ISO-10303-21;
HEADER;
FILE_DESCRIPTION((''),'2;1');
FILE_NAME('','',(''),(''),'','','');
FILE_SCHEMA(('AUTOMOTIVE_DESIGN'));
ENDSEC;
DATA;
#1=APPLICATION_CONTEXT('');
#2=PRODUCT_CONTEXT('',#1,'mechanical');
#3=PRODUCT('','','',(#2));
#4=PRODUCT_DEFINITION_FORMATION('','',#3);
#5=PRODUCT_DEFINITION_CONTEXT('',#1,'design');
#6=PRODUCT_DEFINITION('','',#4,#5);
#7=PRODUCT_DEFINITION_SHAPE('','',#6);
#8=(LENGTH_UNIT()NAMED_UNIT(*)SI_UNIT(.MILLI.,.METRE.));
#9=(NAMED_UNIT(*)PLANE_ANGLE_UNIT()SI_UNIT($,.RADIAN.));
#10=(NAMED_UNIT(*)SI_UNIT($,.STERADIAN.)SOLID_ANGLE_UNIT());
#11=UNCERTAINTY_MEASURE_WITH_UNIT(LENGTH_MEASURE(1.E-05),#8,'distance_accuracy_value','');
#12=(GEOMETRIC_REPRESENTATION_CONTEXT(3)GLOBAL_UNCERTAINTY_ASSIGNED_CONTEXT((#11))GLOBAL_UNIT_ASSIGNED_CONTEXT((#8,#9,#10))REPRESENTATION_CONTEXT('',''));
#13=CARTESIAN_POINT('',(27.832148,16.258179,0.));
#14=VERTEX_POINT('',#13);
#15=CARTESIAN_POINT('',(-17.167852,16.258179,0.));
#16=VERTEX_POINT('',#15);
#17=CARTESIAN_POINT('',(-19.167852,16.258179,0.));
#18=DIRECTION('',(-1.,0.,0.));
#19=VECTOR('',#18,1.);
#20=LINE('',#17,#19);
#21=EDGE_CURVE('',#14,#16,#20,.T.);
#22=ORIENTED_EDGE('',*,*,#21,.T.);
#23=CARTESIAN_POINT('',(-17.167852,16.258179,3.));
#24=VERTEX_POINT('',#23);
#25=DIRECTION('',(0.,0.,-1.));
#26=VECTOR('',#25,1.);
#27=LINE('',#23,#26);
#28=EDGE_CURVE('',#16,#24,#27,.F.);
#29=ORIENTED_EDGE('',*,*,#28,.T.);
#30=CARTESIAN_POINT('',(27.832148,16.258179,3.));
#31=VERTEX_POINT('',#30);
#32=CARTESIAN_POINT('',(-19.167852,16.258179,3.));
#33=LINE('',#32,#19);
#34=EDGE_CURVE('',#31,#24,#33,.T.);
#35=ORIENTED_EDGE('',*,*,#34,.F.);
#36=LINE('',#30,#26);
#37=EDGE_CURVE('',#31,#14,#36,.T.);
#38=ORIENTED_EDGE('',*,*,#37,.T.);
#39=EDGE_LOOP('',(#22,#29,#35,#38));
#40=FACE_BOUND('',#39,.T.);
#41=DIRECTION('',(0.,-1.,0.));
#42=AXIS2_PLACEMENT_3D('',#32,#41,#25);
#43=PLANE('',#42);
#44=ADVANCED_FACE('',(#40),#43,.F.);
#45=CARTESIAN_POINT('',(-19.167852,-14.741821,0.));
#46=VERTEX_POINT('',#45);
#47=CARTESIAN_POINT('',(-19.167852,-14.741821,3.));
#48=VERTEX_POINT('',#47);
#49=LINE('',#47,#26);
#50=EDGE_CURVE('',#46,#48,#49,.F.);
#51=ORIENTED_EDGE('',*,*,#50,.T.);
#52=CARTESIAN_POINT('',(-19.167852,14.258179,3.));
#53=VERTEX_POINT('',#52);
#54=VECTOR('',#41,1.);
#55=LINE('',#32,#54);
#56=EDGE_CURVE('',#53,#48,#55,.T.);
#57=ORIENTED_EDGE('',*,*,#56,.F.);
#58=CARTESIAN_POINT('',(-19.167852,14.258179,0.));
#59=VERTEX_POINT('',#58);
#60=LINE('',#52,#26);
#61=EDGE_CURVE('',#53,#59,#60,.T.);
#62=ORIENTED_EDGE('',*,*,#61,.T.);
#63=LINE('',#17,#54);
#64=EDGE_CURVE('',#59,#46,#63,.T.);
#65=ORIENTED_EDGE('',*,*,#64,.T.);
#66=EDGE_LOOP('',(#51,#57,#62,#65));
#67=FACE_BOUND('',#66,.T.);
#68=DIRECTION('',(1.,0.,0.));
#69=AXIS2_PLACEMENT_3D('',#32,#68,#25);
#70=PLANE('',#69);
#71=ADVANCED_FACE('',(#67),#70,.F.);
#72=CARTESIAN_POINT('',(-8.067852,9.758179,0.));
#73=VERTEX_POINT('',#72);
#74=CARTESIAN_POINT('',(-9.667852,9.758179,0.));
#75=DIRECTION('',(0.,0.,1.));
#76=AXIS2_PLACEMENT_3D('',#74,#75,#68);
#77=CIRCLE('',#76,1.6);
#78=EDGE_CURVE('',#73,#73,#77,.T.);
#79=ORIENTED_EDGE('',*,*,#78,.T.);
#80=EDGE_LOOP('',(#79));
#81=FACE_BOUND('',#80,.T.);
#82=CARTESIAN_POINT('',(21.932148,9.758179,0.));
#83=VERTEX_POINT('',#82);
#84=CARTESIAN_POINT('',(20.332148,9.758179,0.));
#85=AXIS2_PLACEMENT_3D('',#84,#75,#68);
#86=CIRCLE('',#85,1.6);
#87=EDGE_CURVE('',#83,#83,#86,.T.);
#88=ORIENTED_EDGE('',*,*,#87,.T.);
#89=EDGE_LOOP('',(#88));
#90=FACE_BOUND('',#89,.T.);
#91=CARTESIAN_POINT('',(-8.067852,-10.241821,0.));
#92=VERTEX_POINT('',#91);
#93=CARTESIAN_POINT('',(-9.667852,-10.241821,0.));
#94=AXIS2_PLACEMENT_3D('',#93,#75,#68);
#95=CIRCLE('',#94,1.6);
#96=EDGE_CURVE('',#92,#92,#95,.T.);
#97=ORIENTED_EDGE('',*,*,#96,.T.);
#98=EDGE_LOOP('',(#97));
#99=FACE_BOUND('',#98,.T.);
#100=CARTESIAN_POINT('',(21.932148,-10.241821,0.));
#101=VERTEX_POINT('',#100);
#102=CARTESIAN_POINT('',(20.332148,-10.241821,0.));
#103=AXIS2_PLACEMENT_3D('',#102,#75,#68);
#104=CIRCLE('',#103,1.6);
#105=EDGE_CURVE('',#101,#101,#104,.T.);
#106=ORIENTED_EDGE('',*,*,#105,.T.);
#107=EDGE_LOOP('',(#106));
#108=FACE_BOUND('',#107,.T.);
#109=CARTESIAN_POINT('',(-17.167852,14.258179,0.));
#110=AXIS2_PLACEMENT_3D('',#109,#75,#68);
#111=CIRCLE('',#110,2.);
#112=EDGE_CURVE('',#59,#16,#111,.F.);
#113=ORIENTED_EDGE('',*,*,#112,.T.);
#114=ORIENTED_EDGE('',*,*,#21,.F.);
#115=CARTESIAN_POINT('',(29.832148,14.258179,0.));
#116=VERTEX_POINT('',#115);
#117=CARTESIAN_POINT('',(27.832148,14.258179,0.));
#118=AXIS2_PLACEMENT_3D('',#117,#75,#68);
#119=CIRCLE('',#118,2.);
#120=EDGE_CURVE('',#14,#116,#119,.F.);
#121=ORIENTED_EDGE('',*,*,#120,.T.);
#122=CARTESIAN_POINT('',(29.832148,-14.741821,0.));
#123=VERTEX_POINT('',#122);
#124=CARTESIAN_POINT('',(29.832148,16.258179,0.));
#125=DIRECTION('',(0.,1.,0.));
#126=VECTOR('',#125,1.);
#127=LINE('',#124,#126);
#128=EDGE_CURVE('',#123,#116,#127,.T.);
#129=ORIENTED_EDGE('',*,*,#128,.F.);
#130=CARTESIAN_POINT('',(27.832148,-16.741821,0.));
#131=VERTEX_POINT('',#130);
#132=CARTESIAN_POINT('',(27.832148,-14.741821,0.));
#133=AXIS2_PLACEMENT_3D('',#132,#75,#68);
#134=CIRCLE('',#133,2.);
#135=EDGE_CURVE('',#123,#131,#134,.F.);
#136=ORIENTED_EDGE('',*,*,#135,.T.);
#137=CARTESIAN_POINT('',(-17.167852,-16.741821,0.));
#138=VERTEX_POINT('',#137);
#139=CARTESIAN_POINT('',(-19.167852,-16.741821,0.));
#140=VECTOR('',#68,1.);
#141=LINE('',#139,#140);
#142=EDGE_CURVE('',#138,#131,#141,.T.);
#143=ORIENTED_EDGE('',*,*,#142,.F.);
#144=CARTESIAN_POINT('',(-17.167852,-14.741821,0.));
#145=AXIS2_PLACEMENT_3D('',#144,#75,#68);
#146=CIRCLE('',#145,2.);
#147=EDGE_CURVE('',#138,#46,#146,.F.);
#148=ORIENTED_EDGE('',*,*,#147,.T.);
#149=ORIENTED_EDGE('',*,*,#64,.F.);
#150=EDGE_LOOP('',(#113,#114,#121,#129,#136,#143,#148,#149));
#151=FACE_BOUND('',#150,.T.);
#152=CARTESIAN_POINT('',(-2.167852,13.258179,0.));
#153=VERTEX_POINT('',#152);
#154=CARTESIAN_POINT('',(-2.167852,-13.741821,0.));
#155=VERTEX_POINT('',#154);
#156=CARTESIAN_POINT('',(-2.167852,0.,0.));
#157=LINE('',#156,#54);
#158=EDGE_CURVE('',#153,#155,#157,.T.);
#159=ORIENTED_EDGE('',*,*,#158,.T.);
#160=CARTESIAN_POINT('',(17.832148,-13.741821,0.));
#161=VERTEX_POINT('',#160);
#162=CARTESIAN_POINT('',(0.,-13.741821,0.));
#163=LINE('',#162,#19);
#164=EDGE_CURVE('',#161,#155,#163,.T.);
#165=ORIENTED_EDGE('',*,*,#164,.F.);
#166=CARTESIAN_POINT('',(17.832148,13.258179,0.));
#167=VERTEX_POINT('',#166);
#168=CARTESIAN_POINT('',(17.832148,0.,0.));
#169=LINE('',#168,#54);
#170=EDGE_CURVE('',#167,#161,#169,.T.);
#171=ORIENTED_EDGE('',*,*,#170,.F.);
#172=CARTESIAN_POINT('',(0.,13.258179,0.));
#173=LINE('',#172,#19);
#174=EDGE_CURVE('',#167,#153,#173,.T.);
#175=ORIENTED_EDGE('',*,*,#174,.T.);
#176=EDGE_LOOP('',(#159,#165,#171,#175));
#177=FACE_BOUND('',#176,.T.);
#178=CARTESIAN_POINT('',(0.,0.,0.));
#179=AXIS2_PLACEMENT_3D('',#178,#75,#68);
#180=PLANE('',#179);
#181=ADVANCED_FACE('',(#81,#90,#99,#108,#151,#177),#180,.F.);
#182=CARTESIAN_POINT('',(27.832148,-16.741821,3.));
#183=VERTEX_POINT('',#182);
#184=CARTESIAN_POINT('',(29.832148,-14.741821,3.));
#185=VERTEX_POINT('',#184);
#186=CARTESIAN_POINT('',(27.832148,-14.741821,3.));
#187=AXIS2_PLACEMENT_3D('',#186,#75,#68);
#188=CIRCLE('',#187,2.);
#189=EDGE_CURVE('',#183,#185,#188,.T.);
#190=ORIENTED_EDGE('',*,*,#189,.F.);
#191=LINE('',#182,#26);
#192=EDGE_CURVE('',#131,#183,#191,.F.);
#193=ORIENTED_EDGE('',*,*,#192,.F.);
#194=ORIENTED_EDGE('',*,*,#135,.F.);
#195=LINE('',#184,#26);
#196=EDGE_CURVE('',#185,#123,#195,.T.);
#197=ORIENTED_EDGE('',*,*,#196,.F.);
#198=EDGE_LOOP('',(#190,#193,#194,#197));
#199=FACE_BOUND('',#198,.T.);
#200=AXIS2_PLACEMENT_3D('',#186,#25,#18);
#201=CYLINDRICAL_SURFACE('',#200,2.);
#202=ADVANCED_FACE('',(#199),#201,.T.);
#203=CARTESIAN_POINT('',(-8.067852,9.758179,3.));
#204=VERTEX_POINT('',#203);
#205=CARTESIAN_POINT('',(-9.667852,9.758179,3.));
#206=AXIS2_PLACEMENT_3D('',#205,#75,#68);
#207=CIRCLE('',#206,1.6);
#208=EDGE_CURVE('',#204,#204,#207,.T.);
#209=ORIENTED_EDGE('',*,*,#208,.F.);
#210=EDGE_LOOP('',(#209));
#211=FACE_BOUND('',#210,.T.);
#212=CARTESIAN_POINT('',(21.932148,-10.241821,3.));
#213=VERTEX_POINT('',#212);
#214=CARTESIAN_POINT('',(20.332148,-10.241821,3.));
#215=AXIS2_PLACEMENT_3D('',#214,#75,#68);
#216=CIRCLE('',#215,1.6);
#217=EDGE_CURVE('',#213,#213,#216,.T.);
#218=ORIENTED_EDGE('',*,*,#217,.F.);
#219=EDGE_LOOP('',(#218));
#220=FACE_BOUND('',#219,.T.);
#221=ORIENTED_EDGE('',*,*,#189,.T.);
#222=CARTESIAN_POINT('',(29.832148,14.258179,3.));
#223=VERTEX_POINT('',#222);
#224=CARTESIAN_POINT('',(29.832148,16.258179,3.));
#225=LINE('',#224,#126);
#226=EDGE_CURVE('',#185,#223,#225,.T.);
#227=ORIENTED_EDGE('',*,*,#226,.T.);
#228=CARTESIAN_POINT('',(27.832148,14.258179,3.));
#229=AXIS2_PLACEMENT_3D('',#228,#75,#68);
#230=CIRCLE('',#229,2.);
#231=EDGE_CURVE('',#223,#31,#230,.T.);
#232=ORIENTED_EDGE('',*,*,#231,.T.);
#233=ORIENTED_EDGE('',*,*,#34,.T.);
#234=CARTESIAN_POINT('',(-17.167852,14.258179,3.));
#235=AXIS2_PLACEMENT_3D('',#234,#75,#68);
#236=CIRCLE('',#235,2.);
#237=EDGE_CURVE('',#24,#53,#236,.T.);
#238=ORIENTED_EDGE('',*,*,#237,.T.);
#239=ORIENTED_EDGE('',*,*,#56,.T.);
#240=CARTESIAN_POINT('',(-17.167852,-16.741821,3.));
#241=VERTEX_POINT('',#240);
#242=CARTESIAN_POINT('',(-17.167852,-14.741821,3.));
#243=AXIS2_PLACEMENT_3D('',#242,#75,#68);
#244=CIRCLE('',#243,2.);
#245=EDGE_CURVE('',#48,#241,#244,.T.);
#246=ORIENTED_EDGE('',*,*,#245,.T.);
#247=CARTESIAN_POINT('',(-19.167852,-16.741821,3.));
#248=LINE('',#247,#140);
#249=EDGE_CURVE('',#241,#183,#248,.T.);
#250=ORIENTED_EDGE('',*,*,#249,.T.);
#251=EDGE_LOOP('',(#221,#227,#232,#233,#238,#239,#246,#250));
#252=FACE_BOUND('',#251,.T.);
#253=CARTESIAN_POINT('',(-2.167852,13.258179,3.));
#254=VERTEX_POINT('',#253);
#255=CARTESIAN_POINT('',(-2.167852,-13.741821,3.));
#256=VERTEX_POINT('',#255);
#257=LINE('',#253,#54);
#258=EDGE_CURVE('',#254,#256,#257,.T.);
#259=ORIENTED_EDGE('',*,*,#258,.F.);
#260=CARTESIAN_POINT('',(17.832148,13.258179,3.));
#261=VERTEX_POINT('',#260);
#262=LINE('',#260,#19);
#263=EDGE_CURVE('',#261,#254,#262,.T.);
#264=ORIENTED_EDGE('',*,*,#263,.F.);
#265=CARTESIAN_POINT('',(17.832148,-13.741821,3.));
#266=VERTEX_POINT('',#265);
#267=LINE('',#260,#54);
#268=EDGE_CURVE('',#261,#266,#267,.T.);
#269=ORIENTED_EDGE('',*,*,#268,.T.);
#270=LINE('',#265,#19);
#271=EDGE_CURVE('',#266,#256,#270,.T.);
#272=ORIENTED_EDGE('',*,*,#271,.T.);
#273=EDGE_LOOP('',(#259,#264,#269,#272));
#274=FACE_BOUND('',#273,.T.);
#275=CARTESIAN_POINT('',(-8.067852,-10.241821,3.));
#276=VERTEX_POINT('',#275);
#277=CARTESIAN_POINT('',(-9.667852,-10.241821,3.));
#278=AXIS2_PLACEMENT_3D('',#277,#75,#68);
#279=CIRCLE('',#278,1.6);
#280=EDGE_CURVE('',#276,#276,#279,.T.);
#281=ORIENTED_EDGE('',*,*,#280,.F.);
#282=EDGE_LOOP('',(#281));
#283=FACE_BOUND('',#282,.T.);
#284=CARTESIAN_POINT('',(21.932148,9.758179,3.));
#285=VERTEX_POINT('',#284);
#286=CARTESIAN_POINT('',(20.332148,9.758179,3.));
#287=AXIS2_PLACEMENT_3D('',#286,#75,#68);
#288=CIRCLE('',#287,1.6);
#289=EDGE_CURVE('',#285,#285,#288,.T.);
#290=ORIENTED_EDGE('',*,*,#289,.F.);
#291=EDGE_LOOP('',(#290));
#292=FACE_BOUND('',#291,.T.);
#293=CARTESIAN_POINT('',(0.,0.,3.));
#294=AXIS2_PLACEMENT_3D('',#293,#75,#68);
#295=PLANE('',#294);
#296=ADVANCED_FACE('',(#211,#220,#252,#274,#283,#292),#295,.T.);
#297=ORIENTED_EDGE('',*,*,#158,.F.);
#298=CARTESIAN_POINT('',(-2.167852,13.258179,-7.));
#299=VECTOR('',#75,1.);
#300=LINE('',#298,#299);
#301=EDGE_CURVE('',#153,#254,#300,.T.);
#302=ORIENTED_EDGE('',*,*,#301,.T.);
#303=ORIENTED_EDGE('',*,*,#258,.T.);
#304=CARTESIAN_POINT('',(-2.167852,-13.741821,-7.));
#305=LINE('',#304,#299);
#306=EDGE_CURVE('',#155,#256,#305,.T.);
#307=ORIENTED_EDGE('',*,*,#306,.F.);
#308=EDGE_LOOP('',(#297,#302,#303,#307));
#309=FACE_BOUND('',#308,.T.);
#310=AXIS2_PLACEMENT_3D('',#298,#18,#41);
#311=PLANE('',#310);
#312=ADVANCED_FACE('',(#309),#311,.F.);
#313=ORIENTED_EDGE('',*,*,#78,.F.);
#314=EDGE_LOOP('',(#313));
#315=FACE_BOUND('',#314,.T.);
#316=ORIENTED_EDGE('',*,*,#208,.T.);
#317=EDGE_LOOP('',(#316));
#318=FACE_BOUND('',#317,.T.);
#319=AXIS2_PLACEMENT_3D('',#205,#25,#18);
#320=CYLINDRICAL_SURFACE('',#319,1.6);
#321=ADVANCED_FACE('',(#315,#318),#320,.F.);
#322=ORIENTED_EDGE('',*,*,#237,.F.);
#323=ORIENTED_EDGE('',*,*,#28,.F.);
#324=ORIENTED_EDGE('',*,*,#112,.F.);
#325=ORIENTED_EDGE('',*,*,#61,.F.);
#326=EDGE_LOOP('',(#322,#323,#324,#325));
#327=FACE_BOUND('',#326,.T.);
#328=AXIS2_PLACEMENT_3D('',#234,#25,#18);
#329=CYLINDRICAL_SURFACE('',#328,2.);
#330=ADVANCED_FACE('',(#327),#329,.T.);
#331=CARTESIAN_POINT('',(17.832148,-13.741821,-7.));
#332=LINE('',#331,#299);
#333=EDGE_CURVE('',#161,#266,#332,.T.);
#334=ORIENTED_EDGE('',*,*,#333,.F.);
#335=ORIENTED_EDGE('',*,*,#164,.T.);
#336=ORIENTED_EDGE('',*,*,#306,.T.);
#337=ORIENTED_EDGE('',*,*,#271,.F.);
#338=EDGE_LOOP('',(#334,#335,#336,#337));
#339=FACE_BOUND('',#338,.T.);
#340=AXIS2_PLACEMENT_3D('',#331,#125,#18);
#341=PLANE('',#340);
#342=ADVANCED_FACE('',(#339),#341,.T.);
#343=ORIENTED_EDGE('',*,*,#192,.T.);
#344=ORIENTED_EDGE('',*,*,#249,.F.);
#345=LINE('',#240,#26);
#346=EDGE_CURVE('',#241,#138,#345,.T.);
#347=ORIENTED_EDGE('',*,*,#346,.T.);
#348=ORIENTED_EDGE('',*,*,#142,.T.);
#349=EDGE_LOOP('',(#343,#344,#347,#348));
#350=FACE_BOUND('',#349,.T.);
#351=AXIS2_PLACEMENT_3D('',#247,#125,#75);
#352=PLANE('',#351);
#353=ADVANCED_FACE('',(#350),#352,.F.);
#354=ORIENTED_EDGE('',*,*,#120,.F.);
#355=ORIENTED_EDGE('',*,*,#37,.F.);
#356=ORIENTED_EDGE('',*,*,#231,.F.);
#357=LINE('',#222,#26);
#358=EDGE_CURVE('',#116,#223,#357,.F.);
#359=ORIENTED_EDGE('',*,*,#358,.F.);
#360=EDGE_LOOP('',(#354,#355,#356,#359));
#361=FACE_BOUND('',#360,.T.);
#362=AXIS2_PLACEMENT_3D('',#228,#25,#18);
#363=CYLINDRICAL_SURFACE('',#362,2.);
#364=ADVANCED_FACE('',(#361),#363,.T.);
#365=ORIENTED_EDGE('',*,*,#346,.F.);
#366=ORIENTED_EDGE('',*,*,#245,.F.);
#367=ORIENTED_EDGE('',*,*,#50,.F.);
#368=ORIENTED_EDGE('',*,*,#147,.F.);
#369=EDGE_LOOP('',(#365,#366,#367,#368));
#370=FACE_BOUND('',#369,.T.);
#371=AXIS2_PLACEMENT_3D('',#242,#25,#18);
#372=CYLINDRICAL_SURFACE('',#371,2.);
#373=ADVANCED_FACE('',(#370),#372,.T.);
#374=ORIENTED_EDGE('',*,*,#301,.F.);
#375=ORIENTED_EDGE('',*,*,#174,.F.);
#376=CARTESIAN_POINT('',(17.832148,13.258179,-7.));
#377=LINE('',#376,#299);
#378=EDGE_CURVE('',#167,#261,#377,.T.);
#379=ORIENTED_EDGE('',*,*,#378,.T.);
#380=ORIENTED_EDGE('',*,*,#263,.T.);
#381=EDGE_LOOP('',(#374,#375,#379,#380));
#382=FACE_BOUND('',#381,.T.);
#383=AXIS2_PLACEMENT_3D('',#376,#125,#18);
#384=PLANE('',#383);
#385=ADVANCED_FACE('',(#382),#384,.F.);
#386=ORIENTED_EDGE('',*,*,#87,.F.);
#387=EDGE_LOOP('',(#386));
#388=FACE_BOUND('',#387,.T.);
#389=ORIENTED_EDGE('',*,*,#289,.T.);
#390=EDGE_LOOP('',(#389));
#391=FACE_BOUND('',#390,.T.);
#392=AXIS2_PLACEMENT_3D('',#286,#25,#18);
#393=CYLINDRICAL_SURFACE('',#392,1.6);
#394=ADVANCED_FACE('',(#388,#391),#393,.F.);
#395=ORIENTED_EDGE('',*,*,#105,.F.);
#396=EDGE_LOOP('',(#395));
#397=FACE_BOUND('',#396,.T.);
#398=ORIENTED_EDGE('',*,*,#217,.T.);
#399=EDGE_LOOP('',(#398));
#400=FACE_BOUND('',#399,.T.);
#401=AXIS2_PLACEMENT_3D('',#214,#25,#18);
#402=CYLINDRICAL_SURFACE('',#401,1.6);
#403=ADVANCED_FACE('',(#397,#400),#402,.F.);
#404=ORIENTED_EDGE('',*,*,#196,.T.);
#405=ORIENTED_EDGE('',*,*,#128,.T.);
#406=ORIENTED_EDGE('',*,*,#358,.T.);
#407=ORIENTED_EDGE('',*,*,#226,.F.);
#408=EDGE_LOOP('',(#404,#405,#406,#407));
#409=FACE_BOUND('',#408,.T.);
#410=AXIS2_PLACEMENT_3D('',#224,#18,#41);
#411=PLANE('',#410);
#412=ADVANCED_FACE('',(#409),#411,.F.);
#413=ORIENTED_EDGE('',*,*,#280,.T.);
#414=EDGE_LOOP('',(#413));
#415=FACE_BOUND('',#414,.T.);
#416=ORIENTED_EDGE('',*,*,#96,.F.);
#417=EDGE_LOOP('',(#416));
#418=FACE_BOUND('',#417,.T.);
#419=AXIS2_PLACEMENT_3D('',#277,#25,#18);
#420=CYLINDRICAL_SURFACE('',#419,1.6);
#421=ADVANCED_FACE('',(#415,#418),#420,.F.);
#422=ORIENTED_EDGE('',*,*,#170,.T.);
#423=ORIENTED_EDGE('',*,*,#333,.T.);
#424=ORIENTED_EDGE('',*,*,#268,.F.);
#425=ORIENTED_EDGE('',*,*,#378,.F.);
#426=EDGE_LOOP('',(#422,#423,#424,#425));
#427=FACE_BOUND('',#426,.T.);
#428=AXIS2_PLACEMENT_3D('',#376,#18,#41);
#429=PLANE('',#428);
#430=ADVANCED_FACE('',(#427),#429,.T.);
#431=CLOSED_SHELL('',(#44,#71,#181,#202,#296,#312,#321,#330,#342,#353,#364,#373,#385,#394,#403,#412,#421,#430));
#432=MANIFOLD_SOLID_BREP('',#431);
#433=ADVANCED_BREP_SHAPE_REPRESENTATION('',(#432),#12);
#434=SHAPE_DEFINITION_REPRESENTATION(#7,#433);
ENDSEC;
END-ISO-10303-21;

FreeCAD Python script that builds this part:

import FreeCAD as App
import Part
import Sketcher


def edges_at(feature, points):
    """Names of the edges that pass closest to the given points."""
    edges = feature.Shape.Edges
    near = lambda p: min(range(len(edges)), key=lambda i: edges[i].distToShape(Part.Vertex(*p))[0])
    return sorted({f"Edge{near(p) + 1}" for p in points})


def add_polygon(sketch, points):
    """Adds a closed chain of lines whose ends are joined by coincident constraints."""
    first, n = sketch.GeometryCount, len(points)
    for a, b in zip(points, points[1:] + points[:1]):
        sketch.addGeometry(Part.LineSegment(App.Vector(*a, 0), App.Vector(*b, 0)), False)
    for i in range(n):
        sketch.addConstraint(Sketcher.Constraint("Coincident", first + i, 2, first + (i + 1) % n, 1))

doc = App.newDocument("Part")
body = doc.addObject("PartDesign::Body", "Body")

sketch1 = body.newObject("Sketcher::SketchObject", "Sketch")
sketch1.AttachmentSupport = (doc.getObject("XY_Plane"), [""])
sketch1.MapMode = "FlatFace"
add_polygon(sketch1, [(-19.2, 16.3), (-19.2, -16.7), (29.8, -16.7), (29.8, 16.3)])
sketch1.addGeometry(Part.Circle(App.Vector(-9.7, -10.2, 0), App.Vector(0, 0, 1), 1.6), False)
sketch1.addGeometry(Part.Circle(App.Vector(20.3, -10.2, 0), App.Vector(0, 0, 1), 1.6), False)
sketch1.addGeometry(Part.Circle(App.Vector(-9.7, 9.8, 0), App.Vector(0, 0, 1), 1.6), False)
sketch1.addGeometry(Part.Circle(App.Vector(20.3, 9.8, 0), App.Vector(0, 0, 1), 1.6), False)
sketch1.addConstraint([
    Sketcher.Constraint("Vertical", 0),
    Sketcher.Constraint("Horizontal", 1),
    Sketcher.Constraint("Vertical", 2),
    Sketcher.Constraint("Horizontal", 3),
    Sketcher.Constraint("Equal", 4, 5),
    Sketcher.Constraint("Equal", 5, 6),
    Sketcher.Constraint("Equal", 6, 7),
    Sketcher.Constraint("Horizontal", 4, 3, 5, 3),
    Sketcher.Constraint("Horizontal", 6, 3, 7, 3),
    Sketcher.Constraint("Vertical", 4, 3, 6, 3),
    Sketcher.Constraint("Vertical", 5, 3, 7, 3),
    Sketcher.Constraint("Diameter", 4, 3.2),
    Sketcher.Constraint("DistanceX", 1, 1, 1, 2, 49.0),
    Sketcher.Constraint("DistanceY", 0, 2, 0, 1, 33.0),
    Sketcher.Constraint("DistanceX", 4, 3, 5, 3, 30.0),
    Sketcher.Constraint("DistanceY", 4, 3, 6, 3, 20.0),
    Sketcher.Constraint("DistanceX", 0, 2, 4, 3, 9.5),
    Sketcher.Constraint("DistanceY", 0, 2, 4, 3, 6.5),
    Sketcher.Constraint("DistanceY", 4, 3, -1, 1, 10.241821),
    Sketcher.Constraint("DistanceX", 4, 3, -1, 1, 9.667852),
])
pad1 = body.newObject("PartDesign::Pad", "Pad")
pad1.Profile = sketch1
pad1.Length = 3
doc.recompute()

fillet = body.newObject("PartDesign::Fillet", "Fillet")
fillet.Base = (pad1, edges_at(pad1, [
    (-19.168, 16.258, 1.5),
    (29.832, 16.258, 1.5),
    (29.832, -16.742, 1.5),
    (-19.168, -16.742, 1.5),
]))
fillet.Radius = 2

sketch2 = body.newObject("Sketcher::SketchObject", "Sketch001")
sketch2.AttachmentSupport = (doc.getObject("XY_Plane"), [""])
sketch2.MapMode = "FlatFace"
sketch2.AttachmentOffset = App.Placement(App.Vector(0, 0, 3), App.Rotation())
add_polygon(sketch2, [(-2, 13), (-2, -14), (18, -14), (18, 13)])
sketch2.addConstraint([
    Sketcher.Constraint("Vertical", 0),
    Sketcher.Constraint("Horizontal", 1),
    Sketcher.Constraint("Vertical", 2),
    Sketcher.Constraint("Horizontal", 3),
    Sketcher.Constraint("DistanceX", 1, 1, 1, 2, 20.0),
    Sketcher.Constraint("DistanceY", 0, 2, 0, 1, 27.0),
    Sketcher.Constraint("DistanceY", 0, 2, -1, 1, 13.741821),
    Sketcher.Constraint("DistanceX", 0, 2, -1, 1, 2.167852),
])
pocket1 = body.newObject("PartDesign::Pocket", "Pocket")
pocket1.Profile = sketch2
pocket1.Length = 10

doc.recompute()
